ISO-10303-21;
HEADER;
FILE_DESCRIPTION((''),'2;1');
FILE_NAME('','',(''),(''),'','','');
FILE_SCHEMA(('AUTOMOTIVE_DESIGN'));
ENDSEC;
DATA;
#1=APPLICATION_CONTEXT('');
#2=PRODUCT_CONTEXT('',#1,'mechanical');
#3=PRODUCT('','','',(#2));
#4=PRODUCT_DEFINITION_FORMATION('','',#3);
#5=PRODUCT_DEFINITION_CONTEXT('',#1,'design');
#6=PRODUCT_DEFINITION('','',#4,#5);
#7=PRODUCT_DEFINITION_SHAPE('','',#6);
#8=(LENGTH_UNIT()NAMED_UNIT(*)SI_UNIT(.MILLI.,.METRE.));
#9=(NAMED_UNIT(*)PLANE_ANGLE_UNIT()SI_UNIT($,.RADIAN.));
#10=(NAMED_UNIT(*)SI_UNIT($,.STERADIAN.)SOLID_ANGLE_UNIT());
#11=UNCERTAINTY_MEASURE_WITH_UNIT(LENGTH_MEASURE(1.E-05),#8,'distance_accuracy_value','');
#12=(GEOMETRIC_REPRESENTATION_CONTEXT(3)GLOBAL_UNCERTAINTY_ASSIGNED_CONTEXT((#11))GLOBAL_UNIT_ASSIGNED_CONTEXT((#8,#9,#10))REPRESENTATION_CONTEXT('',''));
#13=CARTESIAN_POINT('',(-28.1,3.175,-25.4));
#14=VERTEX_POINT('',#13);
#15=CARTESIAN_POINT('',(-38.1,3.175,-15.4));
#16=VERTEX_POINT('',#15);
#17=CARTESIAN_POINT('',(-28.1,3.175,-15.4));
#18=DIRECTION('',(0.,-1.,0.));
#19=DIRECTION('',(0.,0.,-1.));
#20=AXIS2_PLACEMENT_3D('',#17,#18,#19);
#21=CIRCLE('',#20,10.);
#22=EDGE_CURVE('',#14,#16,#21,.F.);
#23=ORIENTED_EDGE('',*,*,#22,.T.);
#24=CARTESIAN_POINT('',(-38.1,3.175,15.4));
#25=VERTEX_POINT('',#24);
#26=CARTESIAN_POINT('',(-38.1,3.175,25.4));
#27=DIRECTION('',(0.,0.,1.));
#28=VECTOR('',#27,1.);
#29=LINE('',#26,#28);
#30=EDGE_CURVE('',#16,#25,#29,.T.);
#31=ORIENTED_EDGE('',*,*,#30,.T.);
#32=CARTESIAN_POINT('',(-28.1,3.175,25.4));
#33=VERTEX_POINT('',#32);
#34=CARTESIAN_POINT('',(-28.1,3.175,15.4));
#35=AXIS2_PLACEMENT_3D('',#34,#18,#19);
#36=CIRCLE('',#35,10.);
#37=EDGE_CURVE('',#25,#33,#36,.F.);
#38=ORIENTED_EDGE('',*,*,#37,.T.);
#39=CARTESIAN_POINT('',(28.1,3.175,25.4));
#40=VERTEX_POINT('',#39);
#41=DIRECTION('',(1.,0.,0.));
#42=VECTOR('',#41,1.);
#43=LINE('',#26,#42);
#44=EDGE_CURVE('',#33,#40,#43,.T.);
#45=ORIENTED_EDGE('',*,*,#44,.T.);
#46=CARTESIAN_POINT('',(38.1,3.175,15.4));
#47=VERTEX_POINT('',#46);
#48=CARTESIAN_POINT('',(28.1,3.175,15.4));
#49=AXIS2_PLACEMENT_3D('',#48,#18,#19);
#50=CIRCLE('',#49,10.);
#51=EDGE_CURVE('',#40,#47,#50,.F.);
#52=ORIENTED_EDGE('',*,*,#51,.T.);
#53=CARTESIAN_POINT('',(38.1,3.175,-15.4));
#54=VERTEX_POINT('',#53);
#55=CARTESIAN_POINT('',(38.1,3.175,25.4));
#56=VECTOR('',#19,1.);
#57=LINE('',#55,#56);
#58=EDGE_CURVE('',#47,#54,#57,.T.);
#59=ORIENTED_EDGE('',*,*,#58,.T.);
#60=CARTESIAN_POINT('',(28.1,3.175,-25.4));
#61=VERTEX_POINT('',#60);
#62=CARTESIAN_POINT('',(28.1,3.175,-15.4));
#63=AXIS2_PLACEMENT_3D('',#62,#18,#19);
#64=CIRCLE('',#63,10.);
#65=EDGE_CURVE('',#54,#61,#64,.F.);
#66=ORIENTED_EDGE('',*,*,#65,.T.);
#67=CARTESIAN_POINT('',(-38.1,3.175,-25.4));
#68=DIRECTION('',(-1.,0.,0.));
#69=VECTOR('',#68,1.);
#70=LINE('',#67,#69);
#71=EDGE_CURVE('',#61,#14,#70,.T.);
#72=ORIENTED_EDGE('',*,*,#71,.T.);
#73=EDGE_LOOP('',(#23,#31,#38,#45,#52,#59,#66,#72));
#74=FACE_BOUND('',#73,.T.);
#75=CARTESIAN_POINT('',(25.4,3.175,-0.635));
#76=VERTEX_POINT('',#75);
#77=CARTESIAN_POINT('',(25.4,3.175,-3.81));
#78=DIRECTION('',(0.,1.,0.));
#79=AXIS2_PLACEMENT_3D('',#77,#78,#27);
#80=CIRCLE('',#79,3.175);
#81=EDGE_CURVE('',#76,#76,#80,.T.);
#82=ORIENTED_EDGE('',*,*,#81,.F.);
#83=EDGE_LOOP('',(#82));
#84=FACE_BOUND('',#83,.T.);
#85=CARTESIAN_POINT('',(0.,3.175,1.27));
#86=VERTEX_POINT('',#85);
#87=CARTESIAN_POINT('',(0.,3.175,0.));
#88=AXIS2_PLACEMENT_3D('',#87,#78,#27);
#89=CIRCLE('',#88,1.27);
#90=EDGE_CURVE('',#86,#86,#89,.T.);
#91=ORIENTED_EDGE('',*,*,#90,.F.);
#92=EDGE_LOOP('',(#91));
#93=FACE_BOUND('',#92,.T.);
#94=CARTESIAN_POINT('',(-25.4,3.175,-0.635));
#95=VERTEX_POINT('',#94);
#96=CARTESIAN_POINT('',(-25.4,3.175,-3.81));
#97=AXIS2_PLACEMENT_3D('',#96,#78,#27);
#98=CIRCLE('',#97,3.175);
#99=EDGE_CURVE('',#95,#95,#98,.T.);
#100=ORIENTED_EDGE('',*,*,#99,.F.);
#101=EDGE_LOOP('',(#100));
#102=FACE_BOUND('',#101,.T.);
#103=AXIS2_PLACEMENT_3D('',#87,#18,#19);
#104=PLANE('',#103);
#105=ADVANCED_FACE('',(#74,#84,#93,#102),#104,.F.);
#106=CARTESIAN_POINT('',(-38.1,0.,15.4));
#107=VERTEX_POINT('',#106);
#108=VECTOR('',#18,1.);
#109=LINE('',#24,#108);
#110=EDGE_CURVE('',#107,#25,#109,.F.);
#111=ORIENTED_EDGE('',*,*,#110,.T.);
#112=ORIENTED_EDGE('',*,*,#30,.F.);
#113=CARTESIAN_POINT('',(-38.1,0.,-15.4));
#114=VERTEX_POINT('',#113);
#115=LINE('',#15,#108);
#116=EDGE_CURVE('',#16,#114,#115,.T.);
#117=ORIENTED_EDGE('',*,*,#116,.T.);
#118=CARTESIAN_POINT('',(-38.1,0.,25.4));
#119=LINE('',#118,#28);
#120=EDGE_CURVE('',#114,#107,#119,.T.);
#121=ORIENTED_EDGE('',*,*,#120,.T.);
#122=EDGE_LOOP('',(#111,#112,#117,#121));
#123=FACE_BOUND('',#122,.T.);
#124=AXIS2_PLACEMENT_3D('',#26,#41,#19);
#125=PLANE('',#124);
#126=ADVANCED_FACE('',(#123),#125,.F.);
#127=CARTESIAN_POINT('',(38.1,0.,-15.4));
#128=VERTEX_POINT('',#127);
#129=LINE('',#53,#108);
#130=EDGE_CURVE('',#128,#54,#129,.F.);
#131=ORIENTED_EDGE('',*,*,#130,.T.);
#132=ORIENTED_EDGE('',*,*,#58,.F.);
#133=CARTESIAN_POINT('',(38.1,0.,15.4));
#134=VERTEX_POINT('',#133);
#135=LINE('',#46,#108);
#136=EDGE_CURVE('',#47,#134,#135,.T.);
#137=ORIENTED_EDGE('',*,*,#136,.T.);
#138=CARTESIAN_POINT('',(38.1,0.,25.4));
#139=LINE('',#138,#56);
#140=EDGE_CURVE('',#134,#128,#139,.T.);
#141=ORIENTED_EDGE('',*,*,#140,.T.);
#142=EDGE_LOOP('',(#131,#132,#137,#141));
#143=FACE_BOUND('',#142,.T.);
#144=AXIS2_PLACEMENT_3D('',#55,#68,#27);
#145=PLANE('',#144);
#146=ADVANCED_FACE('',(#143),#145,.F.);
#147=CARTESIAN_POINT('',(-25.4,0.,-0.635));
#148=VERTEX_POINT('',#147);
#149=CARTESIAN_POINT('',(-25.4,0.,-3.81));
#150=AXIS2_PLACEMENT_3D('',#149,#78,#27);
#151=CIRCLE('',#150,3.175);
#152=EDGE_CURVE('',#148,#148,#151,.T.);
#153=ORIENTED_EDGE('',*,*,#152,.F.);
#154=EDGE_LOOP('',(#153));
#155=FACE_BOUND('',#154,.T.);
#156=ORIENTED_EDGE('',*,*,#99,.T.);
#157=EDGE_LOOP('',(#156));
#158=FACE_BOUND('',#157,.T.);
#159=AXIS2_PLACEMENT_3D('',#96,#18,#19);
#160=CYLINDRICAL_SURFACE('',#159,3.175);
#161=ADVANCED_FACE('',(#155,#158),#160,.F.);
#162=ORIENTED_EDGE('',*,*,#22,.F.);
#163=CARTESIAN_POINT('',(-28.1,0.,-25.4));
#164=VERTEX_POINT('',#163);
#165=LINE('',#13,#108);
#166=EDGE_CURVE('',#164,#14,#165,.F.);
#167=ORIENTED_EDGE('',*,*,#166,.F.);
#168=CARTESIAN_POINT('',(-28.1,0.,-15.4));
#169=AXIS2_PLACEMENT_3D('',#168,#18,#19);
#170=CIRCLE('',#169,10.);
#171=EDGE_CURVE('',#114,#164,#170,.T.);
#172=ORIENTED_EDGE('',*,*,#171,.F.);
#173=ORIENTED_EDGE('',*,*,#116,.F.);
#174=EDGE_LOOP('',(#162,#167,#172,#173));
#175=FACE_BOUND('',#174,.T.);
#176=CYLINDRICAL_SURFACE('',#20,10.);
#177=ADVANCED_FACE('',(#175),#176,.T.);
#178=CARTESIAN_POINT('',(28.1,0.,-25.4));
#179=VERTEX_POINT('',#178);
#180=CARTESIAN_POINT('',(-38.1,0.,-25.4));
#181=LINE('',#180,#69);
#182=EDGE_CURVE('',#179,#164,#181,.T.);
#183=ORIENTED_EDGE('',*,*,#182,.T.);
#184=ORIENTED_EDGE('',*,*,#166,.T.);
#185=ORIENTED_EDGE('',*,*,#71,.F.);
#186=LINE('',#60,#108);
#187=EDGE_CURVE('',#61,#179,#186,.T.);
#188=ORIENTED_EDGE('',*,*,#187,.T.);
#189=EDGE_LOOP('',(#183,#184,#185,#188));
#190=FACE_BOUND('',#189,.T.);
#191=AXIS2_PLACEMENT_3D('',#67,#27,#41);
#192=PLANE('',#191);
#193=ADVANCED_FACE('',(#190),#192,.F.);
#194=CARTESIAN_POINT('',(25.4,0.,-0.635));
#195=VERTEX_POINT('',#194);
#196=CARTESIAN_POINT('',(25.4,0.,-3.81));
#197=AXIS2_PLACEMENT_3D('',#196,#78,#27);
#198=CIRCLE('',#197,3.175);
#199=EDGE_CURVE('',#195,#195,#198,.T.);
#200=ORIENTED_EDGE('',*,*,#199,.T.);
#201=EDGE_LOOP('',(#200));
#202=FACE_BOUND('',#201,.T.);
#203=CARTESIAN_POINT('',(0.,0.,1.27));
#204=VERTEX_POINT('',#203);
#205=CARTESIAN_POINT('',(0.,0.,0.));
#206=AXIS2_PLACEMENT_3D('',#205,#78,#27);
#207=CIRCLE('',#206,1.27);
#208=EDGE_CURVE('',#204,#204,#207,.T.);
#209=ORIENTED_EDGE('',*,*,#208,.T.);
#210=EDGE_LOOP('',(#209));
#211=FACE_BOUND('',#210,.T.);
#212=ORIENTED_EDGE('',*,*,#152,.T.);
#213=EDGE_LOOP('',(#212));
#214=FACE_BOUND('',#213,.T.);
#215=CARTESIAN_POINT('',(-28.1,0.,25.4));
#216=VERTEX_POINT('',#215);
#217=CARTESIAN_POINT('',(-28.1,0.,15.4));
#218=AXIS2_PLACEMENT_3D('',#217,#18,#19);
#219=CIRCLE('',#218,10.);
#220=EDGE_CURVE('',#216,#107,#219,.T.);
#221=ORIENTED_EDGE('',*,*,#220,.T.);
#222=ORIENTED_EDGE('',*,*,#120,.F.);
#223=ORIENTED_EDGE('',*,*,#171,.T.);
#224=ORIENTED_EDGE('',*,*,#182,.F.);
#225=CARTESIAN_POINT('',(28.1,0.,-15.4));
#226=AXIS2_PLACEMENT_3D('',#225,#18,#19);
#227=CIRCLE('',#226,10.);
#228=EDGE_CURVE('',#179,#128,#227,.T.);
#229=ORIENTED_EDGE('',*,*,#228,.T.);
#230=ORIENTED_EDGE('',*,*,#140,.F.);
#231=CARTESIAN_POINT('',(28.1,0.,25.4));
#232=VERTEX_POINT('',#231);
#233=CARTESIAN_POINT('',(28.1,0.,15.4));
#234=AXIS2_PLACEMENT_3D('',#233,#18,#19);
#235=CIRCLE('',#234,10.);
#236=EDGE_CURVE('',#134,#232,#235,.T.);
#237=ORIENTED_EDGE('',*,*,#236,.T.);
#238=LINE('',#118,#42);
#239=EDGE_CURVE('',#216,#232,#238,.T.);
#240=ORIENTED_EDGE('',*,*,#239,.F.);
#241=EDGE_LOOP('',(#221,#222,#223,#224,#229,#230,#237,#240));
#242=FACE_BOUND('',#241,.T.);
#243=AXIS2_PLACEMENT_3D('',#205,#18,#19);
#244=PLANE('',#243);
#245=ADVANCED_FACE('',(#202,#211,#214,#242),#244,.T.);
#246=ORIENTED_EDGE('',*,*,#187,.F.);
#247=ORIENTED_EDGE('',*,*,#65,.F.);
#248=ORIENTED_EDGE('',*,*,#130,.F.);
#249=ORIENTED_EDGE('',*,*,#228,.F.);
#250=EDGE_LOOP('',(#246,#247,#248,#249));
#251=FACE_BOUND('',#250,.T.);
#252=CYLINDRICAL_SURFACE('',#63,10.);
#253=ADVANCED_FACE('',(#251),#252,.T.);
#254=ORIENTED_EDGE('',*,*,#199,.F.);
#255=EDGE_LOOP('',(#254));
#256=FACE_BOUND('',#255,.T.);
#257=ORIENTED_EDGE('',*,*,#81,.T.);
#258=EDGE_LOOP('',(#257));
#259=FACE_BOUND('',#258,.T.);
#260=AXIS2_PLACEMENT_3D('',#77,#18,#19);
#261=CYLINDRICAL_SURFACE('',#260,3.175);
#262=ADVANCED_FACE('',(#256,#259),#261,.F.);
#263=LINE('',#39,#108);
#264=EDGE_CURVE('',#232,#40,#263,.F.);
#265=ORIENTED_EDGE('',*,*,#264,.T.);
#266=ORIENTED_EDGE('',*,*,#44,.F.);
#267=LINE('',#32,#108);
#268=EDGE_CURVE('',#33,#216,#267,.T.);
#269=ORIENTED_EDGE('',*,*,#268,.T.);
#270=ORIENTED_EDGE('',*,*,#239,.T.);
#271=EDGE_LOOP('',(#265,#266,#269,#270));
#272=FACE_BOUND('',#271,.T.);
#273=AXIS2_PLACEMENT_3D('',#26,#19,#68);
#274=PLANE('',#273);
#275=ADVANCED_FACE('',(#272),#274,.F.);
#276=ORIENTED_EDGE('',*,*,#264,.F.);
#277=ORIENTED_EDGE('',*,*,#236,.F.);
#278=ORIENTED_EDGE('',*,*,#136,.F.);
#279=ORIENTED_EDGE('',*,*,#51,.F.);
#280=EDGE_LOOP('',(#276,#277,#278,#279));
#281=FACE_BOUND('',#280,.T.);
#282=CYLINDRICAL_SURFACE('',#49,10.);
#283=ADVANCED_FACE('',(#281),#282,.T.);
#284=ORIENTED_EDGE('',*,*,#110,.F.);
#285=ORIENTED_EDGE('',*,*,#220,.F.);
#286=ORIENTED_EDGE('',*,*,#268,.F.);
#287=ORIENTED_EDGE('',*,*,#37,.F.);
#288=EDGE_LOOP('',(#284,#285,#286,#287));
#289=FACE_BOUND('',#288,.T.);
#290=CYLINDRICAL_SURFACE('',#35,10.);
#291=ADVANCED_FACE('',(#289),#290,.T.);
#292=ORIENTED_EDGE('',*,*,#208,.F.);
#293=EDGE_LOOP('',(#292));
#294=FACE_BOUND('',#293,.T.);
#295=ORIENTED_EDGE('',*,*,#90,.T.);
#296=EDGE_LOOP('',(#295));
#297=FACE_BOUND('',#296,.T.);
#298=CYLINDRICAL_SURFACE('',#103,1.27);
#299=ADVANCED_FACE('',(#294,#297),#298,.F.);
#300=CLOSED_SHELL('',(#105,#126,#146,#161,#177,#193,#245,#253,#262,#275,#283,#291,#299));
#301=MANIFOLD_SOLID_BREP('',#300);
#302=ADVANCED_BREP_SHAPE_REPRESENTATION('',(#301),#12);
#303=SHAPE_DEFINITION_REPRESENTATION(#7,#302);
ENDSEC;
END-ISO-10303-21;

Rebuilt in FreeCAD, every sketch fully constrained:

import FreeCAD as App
import Part
import Sketcher
from FreeCAD import Vector
Q = App.Units.Quantity


def edges_at(feature, points):
    """Names of the edges that pass closest to the given points."""
    edges = feature.Shape.Edges
    near = lambda p: min(range(len(edges)), key=lambda i: edges[i].distToShape(Part.Vertex(*p))[0])
    return sorted({f"Edge{near(p) + 1}" for p in points})


def add_polygon(sketch, points):
    """Adds a closed chain of lines whose ends are joined by coincident constraints."""
    first, n = sketch.GeometryCount, len(points)
    for a, b in zip(points, points[1:] + points[:1]):
        sketch.addGeometry(Part.LineSegment(App.Vector(*a, 0), App.Vector(*b, 0)), False)
    for i in range(n):
        sketch.addConstraint(Sketcher.Constraint("Coincident", first + i, 2, first + (i + 1) % n, 1))

doc = App.newDocument("Part")
body = doc.addObject("PartDesign::Body", "Body")

sketch1 = body.newObject("Sketcher::SketchObject", "Sketch")
sketch1.AttachmentSupport = (doc.getObject("XZ_Plane"), [""])
sketch1.MapMode = "FlatFace"
add_polygon(sketch1, [(-38.1, -25.4), (-38.1, 25.4), (38.1, 25.4), (38.1, -25.4)])
sketch1.addGeometry(Part.Circle(Vector(0, 0, 0), Vector(0, 0, 1), 1.3), False)
sketch1.addGeometry(Part.Circle(Vector(-25.4, -3.8, 0), Vector(0, 0, 1), 3.2), False)
sketch1.addGeometry(Part.Circle(Vector(25.4, -3.8, 0), Vector(0, 0, 1), 3.2), False)
sketch1.addConstraint([
    Sketcher.Constraint("Vertical", 0),
    Sketcher.Constraint("Horizontal", 1),
    Sketcher.Constraint("Vertical", 2),
    Sketcher.Constraint("Horizontal", 3),
    Sketcher.Constraint("Coincident", 4, 3, -1, 1),
    Sketcher.Constraint("Equal", 5, 6),
    Sketcher.Constraint("Symmetric", 0, 2, 2, 2, -1, 1),
    Sketcher.Constraint("Symmetric", 5, 3, 6, 3, -2),
    Sketcher.Constraint("Diameter", 4, Q("0.1 in")),
    Sketcher.Constraint("Diameter", 5, Q("0.25 in")),
    Sketcher.Constraint("DistanceX", 1, 1, 1, 2, Q("3 in")),
    Sketcher.Constraint("DistanceY", 0, 1, 0, 2, Q("2 in")),
    Sketcher.Constraint("DistanceX", 5, 3, -1, 1, Q("1 in")),
    Sketcher.Constraint("DistanceY", 5, 3, -1, 1, Q("0.15 in")),
])
pad1 = body.newObject("PartDesign::Pad", "Pad")
pad1.Profile = sketch1
pad1.Length = Q("0.125 in")
pad1.Reversed = True
doc.recompute()

fillet = body.newObject("PartDesign::Fillet", "Fillet")
fillet.Base = (pad1, edges_at(pad1, [
    (38.1, 1.587, 25.4),
    (-38.1, 1.587, 25.4),
    (-38.1, 1.587, -25.4),
    (38.1, 1.587, -25.4),
]))
fillet.Radius = 10

doc.recompute()
